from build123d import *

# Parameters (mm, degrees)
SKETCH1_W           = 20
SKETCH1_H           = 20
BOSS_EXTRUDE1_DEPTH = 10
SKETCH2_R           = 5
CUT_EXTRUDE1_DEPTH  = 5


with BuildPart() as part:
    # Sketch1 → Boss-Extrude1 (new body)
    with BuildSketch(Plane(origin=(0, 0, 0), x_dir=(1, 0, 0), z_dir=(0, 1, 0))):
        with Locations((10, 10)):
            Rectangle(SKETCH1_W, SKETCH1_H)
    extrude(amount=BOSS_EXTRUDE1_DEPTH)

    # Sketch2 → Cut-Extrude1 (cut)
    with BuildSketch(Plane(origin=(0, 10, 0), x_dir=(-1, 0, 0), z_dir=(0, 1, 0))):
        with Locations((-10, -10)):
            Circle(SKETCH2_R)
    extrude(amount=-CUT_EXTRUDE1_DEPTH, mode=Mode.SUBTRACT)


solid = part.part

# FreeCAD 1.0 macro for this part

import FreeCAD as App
import Part
import Sketcher
from FreeCAD import Vector

doc = App.newDocument("Part")
body = doc.addObject("PartDesign::Body", "Body")

sketch1 = body.newObject("Sketcher::SketchObject", "Sketch")
sketch1.AttachmentSupport = (doc.getObject("XZ_Plane"), [""])
sketch1.MapMode = "FlatFace"
sketch1.addGeometry([
    Part.LineSegment(Vector(0, -20, 0), Vector(0, 0, 0)),
    Part.LineSegment(Vector(0, 0, 0), Vector(20, 0, 0)),
    Part.LineSegment(Vector(20, 0, 0), Vector(20, -20, 0)),
    Part.LineSegment(Vector(20, -20, 0), Vector(0, -20, 0)),
], False)
sketch1.addConstraint([
    Sketcher.Constraint("Coincident", 0, 2, 1, 1),
    Sketcher.Constraint("Coincident", 1, 2, 2, 1),
    Sketcher.Constraint("Coincident", 2, 2, 3, 1),
    Sketcher.Constraint("Coincident", 3, 2, 0, 1),
    Sketcher.Constraint("Vertical", 0),
    Sketcher.Constraint("Horizontal", 1),
    Sketcher.Constraint("Vertical", 2),
    Sketcher.Constraint("Horizontal", 3),
    Sketcher.Constraint("Coincident", 0, 2, -1, 1),
    Sketcher.Constraint("Equal", 3, 0),
    Sketcher.Constraint("DistanceX", 1, 1, 1, 2, 20.0),
])
pad1 = body.newObject("PartDesign::Pad", "Pad")
pad1.Profile = sketch1
pad1.Length = 10
pad1.Reversed = True

sketch2 = body.newObject("Sketcher::SketchObject", "Sketch001")
sketch2.AttachmentSupport = (doc.getObject("XZ_Plane"), [""])
sketch2.MapMode = "FlatFace"
sketch2.AttachmentOffset = App.Placement(Vector(0, 0, -10), App.Rotation())
sketch2.addGeometry(Part.Circle(Vector(10, -10, 0), Vector(0, 0, 1), 5), False)
sketch2.addConstraint([
    Sketcher.Constraint("Diameter", 0, 10.0),
    Sketcher.Constraint("DistanceX", -1, 1, 0, 3, 10.0),
    Sketcher.Constraint("DistanceY", 0, 3, -1, 1, 10.0),
])
pocket1 = body.newObject("PartDesign::Pocket", "Pocket")
pocket1.Profile = sketch2
pocket1.Length = 5
pocket1.Reversed = True

doc.recompute()
